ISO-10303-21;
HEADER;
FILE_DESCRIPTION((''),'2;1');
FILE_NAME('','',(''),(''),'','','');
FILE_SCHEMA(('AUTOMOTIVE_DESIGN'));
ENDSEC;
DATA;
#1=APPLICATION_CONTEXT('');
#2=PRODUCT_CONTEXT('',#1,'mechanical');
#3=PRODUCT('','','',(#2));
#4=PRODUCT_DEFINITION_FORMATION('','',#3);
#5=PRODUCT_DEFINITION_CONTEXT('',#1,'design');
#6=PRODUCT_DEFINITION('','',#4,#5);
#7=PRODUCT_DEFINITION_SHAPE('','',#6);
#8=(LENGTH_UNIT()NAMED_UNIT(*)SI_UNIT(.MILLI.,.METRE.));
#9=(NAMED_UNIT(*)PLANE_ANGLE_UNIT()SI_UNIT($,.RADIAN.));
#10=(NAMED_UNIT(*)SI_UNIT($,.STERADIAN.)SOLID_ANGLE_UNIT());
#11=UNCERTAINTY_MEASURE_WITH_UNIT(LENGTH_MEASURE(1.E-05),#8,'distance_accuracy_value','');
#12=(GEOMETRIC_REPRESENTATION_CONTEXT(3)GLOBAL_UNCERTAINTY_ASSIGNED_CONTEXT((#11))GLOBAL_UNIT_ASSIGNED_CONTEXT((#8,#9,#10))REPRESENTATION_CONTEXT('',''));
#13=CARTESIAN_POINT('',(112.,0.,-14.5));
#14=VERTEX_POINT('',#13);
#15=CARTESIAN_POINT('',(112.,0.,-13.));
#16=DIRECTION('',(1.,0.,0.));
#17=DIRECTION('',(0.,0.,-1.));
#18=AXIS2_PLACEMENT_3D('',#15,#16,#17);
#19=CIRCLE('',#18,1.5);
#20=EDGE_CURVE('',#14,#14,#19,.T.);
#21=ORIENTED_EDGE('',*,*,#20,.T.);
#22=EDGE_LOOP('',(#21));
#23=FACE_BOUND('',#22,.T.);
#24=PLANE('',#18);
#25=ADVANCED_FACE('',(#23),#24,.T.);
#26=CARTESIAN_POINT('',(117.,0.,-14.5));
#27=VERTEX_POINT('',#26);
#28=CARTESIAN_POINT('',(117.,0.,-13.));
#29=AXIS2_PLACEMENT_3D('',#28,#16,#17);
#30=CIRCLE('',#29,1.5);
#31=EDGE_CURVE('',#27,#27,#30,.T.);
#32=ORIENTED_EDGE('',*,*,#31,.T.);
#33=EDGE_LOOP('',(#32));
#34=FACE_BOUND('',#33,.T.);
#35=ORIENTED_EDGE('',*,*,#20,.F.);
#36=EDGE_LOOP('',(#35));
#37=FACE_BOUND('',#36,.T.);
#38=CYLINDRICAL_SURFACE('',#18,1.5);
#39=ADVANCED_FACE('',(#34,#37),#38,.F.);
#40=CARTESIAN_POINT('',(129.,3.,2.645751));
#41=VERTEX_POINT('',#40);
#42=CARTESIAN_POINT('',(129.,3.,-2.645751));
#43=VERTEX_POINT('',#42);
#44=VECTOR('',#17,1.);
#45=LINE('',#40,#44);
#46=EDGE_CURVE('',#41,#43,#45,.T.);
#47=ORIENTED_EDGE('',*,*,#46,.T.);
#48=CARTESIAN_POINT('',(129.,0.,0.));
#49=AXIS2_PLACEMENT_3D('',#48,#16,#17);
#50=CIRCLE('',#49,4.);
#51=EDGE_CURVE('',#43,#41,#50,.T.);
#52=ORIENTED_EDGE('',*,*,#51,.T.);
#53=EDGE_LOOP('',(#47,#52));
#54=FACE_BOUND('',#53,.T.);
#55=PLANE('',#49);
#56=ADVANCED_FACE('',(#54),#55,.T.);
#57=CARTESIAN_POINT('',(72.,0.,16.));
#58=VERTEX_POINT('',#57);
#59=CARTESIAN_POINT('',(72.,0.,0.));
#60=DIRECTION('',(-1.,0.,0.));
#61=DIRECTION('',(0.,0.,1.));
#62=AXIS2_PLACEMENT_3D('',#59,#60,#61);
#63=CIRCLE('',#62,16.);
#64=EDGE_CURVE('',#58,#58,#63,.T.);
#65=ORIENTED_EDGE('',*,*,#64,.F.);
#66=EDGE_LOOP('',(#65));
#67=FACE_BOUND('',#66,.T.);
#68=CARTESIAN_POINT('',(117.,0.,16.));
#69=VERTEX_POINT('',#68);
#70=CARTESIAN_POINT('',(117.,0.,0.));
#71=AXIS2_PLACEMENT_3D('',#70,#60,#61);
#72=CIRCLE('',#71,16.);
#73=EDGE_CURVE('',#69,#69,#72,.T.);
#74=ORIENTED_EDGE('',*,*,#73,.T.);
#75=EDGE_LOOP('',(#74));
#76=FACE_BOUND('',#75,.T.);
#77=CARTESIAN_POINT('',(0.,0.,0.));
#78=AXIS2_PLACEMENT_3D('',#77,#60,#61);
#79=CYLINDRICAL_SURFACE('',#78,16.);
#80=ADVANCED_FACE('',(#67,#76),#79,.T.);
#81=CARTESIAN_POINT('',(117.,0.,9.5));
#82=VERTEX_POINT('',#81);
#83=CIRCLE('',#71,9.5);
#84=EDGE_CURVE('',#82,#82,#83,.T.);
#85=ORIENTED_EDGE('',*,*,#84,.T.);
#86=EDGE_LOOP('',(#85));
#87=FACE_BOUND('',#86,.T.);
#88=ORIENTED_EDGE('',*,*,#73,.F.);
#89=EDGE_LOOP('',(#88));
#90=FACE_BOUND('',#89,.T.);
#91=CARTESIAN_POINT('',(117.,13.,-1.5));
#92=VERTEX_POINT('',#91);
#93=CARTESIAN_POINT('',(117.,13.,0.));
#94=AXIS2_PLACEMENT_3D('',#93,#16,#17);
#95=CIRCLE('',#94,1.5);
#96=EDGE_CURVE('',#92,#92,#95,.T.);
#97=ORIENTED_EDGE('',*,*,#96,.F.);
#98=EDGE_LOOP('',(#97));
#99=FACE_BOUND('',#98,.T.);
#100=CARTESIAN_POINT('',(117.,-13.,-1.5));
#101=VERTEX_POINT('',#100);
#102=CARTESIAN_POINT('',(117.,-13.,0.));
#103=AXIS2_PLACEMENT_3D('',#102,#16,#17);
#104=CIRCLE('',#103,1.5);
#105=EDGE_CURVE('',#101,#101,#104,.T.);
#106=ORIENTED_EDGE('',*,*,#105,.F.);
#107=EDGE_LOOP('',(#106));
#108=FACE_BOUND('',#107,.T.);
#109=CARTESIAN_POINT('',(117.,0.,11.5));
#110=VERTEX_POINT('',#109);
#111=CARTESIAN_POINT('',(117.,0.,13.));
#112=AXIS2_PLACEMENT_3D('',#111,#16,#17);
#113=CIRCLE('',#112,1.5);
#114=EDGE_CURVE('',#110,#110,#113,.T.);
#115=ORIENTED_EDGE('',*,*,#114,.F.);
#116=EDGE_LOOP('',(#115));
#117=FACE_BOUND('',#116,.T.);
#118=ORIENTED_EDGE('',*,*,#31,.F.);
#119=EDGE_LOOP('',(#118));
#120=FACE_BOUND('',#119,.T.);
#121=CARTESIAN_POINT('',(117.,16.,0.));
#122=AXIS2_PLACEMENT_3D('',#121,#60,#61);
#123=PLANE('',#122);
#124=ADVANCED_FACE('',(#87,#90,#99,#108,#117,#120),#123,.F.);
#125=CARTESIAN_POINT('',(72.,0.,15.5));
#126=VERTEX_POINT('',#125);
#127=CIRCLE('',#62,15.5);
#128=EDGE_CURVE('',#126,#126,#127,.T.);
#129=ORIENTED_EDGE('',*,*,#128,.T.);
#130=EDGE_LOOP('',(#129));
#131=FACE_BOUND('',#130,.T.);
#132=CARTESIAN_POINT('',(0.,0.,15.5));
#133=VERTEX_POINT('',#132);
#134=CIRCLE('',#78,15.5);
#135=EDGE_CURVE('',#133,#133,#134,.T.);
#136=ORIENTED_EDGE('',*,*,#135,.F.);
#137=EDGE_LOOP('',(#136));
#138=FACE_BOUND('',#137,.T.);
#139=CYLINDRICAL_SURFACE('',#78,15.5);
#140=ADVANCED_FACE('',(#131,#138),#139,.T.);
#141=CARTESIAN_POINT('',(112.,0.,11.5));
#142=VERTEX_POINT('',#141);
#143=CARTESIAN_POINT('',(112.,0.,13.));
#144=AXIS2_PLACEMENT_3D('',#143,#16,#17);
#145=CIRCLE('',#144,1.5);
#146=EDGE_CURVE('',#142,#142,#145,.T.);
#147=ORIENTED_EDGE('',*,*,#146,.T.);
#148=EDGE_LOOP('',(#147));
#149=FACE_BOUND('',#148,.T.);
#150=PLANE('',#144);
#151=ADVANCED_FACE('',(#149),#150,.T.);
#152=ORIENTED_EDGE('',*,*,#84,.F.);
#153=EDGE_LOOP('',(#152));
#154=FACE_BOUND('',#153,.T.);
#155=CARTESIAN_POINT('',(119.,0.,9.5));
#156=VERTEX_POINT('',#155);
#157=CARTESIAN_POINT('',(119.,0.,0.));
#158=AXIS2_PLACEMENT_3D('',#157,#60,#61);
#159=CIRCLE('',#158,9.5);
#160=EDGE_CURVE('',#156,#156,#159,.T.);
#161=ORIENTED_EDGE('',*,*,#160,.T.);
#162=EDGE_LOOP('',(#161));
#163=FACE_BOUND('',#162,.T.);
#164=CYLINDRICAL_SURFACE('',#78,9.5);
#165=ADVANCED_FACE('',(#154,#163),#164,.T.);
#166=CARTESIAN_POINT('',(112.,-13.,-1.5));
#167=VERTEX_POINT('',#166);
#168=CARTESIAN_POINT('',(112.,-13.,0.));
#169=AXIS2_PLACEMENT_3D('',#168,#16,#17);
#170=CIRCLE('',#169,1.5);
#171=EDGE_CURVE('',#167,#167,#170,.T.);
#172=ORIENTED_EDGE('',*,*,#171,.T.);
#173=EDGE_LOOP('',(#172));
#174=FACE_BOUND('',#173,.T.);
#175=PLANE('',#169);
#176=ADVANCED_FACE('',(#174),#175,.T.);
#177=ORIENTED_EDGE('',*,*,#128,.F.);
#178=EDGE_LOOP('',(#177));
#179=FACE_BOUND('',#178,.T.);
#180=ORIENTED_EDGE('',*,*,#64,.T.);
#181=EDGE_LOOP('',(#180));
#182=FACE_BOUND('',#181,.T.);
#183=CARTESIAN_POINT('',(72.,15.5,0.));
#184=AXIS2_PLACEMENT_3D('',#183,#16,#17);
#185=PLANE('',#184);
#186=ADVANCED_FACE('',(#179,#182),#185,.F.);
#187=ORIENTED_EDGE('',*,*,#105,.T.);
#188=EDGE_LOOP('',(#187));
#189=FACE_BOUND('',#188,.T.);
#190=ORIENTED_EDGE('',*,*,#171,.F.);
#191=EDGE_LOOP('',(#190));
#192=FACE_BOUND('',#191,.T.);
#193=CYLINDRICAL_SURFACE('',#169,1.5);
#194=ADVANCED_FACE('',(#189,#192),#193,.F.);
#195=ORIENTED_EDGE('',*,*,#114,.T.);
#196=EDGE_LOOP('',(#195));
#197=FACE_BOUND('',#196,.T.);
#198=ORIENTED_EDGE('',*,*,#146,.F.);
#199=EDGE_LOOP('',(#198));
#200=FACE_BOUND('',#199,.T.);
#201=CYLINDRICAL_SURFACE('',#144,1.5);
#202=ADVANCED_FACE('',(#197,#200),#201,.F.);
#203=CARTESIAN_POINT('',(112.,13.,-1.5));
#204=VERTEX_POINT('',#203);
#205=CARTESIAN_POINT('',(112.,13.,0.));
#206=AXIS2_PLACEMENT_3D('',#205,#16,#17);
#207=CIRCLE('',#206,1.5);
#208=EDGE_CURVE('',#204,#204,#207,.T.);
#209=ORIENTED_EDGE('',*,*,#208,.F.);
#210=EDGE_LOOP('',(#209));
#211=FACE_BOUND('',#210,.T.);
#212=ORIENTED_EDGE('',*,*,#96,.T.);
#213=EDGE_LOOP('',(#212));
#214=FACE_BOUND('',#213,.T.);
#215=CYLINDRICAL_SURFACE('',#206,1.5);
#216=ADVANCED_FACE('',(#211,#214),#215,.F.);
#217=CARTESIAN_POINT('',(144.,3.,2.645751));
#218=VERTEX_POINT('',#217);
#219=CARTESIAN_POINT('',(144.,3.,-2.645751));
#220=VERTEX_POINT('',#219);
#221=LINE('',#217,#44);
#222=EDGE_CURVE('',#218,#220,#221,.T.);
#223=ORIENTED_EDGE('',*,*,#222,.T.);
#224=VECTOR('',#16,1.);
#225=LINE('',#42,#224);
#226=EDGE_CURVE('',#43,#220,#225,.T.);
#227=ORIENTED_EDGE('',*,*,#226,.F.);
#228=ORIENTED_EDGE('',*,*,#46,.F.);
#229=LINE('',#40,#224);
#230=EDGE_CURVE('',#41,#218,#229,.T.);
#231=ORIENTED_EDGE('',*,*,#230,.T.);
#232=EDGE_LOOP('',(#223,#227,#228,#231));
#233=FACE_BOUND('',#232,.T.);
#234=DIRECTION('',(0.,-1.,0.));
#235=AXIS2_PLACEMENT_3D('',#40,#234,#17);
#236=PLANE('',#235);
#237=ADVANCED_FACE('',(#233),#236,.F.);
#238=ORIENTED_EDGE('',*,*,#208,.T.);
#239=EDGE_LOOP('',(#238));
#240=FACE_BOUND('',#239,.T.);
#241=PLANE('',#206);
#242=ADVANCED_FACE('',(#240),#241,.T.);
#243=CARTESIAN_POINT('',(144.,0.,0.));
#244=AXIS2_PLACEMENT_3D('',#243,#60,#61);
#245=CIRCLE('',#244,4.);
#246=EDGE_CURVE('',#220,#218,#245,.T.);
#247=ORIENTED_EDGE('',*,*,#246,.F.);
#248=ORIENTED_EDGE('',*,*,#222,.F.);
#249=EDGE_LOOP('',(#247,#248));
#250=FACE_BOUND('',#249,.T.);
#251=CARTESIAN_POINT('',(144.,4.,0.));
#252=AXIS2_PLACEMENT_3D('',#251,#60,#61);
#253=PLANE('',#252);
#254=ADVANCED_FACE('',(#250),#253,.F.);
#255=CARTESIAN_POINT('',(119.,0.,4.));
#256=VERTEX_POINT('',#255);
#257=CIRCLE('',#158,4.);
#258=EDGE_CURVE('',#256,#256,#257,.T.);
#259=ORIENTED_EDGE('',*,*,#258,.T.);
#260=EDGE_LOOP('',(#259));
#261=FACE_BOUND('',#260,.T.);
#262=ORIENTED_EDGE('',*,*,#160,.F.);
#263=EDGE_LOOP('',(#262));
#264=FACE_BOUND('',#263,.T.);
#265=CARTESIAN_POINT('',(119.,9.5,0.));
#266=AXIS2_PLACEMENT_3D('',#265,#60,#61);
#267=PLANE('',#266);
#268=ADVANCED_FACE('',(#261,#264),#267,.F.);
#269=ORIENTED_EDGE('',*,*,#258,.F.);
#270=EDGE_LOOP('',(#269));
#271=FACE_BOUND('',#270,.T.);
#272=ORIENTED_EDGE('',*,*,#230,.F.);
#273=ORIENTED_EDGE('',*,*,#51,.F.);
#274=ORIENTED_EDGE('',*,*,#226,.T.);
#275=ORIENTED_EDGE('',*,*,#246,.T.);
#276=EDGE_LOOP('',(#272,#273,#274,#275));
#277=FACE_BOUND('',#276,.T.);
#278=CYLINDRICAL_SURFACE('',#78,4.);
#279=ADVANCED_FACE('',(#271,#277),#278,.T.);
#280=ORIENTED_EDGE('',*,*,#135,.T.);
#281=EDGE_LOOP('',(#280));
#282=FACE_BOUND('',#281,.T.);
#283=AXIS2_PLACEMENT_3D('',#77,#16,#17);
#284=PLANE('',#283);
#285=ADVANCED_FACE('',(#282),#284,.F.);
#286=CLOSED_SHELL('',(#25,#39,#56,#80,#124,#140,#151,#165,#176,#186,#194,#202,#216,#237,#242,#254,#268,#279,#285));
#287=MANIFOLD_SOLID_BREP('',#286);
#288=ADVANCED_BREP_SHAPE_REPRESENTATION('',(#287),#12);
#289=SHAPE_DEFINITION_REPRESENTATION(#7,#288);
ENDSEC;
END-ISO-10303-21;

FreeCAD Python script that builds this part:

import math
import FreeCAD as App
import Part
import Sketcher


def add_polygon(sketch, points):
    """Adds a closed chain of lines whose ends are joined by coincident constraints."""
    first, n = sketch.GeometryCount, len(points)
    for a, b in zip(points, points[1:] + points[:1]):
        sketch.addGeometry(Part.LineSegment(App.Vector(*a, 0), App.Vector(*b, 0)), False)
    for i in range(n):
        sketch.addConstraint(Sketcher.Constraint("Coincident", first + i, 2, first + (i + 1) % n, 1))

doc = App.newDocument("Part")
body = doc.addObject("PartDesign::Body", "Body")

sketch1 = body.newObject("Sketcher::SketchObject", "Sketch")
sketch1.AttachmentSupport = (doc.getObject("XY_Plane"), [""])
sketch1.MapMode = "FlatFace"
add_polygon(sketch1, [(0, 15.5), (0, 0), (144, 0), (144, 4), (119, 4), (119, 9.5), (117, 9.5), (117, 16), (72, 16), (72, 15.5)])
sketch1.addConstraint([
    Sketcher.Constraint("Vertical", 0),
    Sketcher.Constraint("Horizontal", 1),
    Sketcher.Constraint("Vertical", 2),
    Sketcher.Constraint("Horizontal", 3),
    Sketcher.Constraint("Vertical", 4),
    Sketcher.Constraint("Horizontal", 5),
    Sketcher.Constraint("Vertical", 6),
    Sketcher.Constraint("Horizontal", 7),
    Sketcher.Constraint("Vertical", 8),
    Sketcher.Constraint("Horizontal", 9),
    Sketcher.Constraint("Coincident", 0, 2, -1, 1),
    Sketcher.Constraint("DistanceX", 1, 1, 1, 2, 144.0),
    Sketcher.Constraint("DistanceX", 3, 2, 3, 1, 25.0),
    Sketcher.Constraint("DistanceX", 5, 2, 5, 1, 2.0),
    Sketcher.Constraint("DistanceX", 7, 2, 7, 1, 45.0),
    Sketcher.Constraint("DistanceY", 2, 1, 2, 2, 4.0),
    Sketcher.Constraint("DistanceY", 0, 2, 0, 1, 15.5),
    Sketcher.Constraint("DistanceY", 4, 1, 4, 2, 5.5),
    Sketcher.Constraint("DistanceY", 6, 1, 6, 2, 6.5),
])
revolution = body.newObject("PartDesign::Revolution", "Revolution")
revolution.Profile = sketch1
revolution.ReferenceAxis = (sketch1, ["H_Axis"])
revolution.Angle = 360

sketch2 = body.newObject("Sketcher::SketchObject", "Sketch001")
sketch2.AttachmentSupport = (doc.getObject("YZ_Plane"), [""])
sketch2.MapMode = "FlatFace"
sketch2.AttachmentOffset = App.Placement(App.Vector(0, 0, 144), App.Rotation())
sketch2.addGeometry([
    Part.LineSegment(App.Vector(3, 2.6, 0), App.Vector(3, -2.6, 0)),
    Part.ArcOfCircle(Part.Circle(App.Vector(0, 0, 0), App.Vector(0, 0, 1), 4), math.radians(-41), math.radians(41)),
], False)
sketch2.addConstraint([
    Sketcher.Constraint("Coincident", 0, 1, 1, 2),
    Sketcher.Constraint("Coincident", 1, 1, 0, 2),
    Sketcher.Constraint("Vertical", 0),
    Sketcher.Constraint("Coincident", 1, 3, -1, 1),
    Sketcher.Constraint("Radius", 1, 4.0),
    Sketcher.Constraint("DistanceX", -1, 1, 0, 1, 3.0),
])
pocket1 = body.newObject("PartDesign::Pocket", "Pocket")
pocket1.Profile = sketch2
pocket1.Length = 15

sketch3 = body.newObject("Sketcher::SketchObject", "Sketch002")
sketch3.AttachmentSupport = (doc.getObject("YZ_Plane"), [""])
sketch3.MapMode = "FlatFace"
sketch3.AttachmentOffset = App.Placement(App.Vector(0, 0, 117), App.Rotation())
sketch3.addGeometry([
    Part.Circle(App.Vector(13, 0, 0), App.Vector(0, 0, 1), 1.5),
    Part.Circle(App.Vector(0, -13, 0), App.Vector(0, 0, 1), 1.5),
    Part.Circle(App.Vector(-13, 0, 0), App.Vector(0, 0, 1), 1.5),
    Part.Circle(App.Vector(0, 13, 0), App.Vector(0, 0, 1), 1.5),
], False)
sketch3.addConstraint([
    Sketcher.Constraint("Equal", 0, 1),
    Sketcher.Constraint("Equal", 1, 2),
    Sketcher.Constraint("Equal", 2, 3),
    Sketcher.Constraint("Symmetric", 0, 3, 2, 3, -1, 1),
    Sketcher.Constraint("Symmetric", 1, 3, 3, 3, -1, 1),
    Sketcher.Constraint("PointOnObject", 0, 3, -1),
    Sketcher.Constraint("PointOnObject", 1, 3, -2),
    Sketcher.Constraint("Diameter", 0, 3.0),
    Sketcher.Constraint("DistanceX", -1, 1, 0, 3, 13.0),
    Sketcher.Constraint("DistanceY", 1, 3, -1, 1, 13.0),
])
pocket2 = body.newObject("PartDesign::Pocket", "Pocket001")
pocket2.Profile = sketch3
pocket2.Length = 5

doc.recompute()
